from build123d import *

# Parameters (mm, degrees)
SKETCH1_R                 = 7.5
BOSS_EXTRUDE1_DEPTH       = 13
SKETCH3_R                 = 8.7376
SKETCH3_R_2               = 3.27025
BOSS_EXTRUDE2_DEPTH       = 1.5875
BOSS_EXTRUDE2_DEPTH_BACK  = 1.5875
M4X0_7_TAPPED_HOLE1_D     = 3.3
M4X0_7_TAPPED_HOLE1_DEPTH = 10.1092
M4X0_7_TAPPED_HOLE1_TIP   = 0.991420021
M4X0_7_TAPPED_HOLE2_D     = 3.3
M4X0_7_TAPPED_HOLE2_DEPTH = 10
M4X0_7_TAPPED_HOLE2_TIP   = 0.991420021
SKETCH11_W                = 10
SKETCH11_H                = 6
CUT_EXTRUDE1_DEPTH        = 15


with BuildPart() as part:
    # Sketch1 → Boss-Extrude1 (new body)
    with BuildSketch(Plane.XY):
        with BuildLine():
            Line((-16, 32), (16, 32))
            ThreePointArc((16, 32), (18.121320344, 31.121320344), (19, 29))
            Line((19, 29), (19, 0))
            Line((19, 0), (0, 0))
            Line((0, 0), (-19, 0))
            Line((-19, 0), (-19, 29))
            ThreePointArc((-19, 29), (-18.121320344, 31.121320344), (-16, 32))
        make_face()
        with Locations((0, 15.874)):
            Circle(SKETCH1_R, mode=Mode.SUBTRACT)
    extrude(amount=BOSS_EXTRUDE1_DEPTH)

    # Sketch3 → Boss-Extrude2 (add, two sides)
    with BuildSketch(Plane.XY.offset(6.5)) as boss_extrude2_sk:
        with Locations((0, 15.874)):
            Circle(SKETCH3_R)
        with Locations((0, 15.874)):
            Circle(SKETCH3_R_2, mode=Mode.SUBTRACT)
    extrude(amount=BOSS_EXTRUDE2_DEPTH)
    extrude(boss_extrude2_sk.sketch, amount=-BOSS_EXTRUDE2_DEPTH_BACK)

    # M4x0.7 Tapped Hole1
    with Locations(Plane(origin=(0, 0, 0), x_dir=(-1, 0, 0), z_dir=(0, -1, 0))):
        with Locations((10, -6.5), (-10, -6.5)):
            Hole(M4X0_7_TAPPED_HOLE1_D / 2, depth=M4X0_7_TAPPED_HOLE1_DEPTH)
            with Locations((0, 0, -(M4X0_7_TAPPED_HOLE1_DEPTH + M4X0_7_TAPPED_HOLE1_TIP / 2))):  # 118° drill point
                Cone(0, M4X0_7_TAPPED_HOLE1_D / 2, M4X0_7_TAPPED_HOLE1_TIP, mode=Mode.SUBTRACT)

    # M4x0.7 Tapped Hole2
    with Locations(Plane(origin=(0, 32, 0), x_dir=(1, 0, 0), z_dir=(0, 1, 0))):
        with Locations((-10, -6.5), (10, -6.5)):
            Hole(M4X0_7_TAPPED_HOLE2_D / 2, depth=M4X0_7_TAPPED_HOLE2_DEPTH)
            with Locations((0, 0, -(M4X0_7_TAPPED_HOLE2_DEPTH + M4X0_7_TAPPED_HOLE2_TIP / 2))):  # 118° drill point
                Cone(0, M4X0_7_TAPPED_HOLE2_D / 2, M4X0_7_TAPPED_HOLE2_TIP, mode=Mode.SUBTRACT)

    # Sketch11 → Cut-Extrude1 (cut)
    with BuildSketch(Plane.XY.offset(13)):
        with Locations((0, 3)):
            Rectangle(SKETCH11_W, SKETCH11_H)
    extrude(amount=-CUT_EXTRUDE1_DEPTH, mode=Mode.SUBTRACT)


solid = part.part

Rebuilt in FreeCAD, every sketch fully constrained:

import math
import FreeCAD as App
import Part
import Sketcher
from FreeCAD import Vector
Q = App.Units.Quantity

doc = App.newDocument("Part")
body = doc.addObject("PartDesign::Body", "Body")

# Sketch on XY plane
sketch1 = body.newObject("Sketcher::SketchObject", "Sketch")
sketch1.AttachmentSupport = (doc.getObject("XY_Plane"), [""])
sketch1.MapMode = "FlatFace"
sketch1.addGeometry(Part.LineSegment(Vector(16, 32, 0), Vector(-16, 32, 0)), False)
sketch1.addGeometry(Part.ArcOfCircle(Part.Circle(Vector(-16, 29, 0), Vector(0, 0, 1), 3), math.radians(90), math.radians(180)), False)
sketch1.addGeometry(Part.LineSegment(Vector(-19, 29, 0), Vector(-19, 0, 0)), False)
sketch1.addGeometry(Part.LineSegment(Vector(-19, 0, 0), Vector(19, 0, 0)), False)
sketch1.addGeometry(Part.LineSegment(Vector(19, 0, 0), Vector(19, 29, 0)), False)
sketch1.addGeometry(Part.ArcOfCircle(Part.Circle(Vector(16, 29, 0), Vector(0, 0, 1), 3), math.radians(0), math.radians(90)), False)
sketch1.addGeometry(Part.Circle(Vector(0, 15.9, 0), Vector(0, 0, 1), 7.5), False)
sketch1.addConstraint(Sketcher.Constraint("Tangent", 0, 2, 1, 1))
sketch1.addConstraint(Sketcher.Constraint("Tangent", 1, 2, 2, 1))
sketch1.addConstraint(Sketcher.Constraint("Coincident", 2, 2, 3, 1))
sketch1.addConstraint(Sketcher.Constraint("Coincident", 3, 2, 4, 1))
sketch1.addConstraint(Sketcher.Constraint("Tangent", 4, 2, 5, 1))
sketch1.addConstraint(Sketcher.Constraint("Tangent", 5, 2, 0, 1))
sketch1.addConstraint(Sketcher.Constraint("Horizontal", 0))
sketch1.addConstraint(Sketcher.Constraint("Vertical", 2))
sketch1.addConstraint(Sketcher.Constraint("Horizontal", 3))
sketch1.addConstraint(Sketcher.Constraint("Vertical", 4))
sketch1.addConstraint(Sketcher.Constraint("Equal", 1, 5))
sketch1.addConstraint(Sketcher.Constraint("Symmetric", 2, 2, 3, 2, -1, 1))
sketch1.addConstraint(Sketcher.Constraint("PointOnObject", 6, 3, -2))
sketch1.addConstraint(Sketcher.Constraint("Diameter", 6, Q("15 mm")))
sketch1.addConstraint(Sketcher.Constraint("Radius", 1, Q("3 mm")))
sketch1.addConstraint(Sketcher.Constraint("DistanceX", 0, 2, 0, 1, Q("32 mm")))
sketch1.addConstraint(Sketcher.Constraint("DistanceY", 2, 2, 2, 1, Q("29 mm")))
sketch1.addConstraint(Sketcher.Constraint("DistanceY", -1, 1, 6, 3, Q("15.874 mm")))
pad1 = body.newObject("PartDesign::Pad", "Pad")
pad1.Profile = sketch1
pad1.Length = 13

# Sketch on XY plane
sketch2 = body.newObject("Sketcher::SketchObject", "Sketch001")
sketch2.AttachmentSupport = (doc.getObject("XY_Plane"), [""])
sketch2.MapMode = "FlatFace"
sketch2.AttachmentOffset = App.Placement(Vector(0, 0, 6.5), App.Rotation())
sketch2.addGeometry(Part.Circle(Vector(0, 15.9, 0), Vector(0, 0, 1), 8.7), False)
sketch2.addGeometry(Part.Circle(Vector(0, 15.9, 0), Vector(0, 0, 1), 3.3), False)
sketch2.addConstraint(Sketcher.Constraint("Coincident", 1, 3, 0, 3))
sketch2.addConstraint(Sketcher.Constraint("PointOnObject", 0, 3, -2))
sketch2.addConstraint(Sketcher.Constraint("Diameter", 0, Q("17.4752 mm")))
sketch2.addConstraint(Sketcher.Constraint("Diameter", 1, Q("6.5405 mm")))
sketch2.addConstraint(Sketcher.Constraint("DistanceY", -1, 1, 0, 3, Q("15.874 mm")))
pad2 = body.newObject("PartDesign::Pad", "Pad001")
pad2.Profile = sketch2
pad2.Type = "TwoLengths"
pad2.Length = 1.5875
pad2.Length2 = 1.5875

# Sketch on XZ plane
sketch3 = body.newObject("Sketcher::SketchObject", "Sketch002")
sketch3.AttachmentSupport = (doc.getObject("XZ_Plane"), [""])
sketch3.MapMode = "FlatFace"
sketch3.addGeometry(Part.Circle(Vector(-10, 6.5, 0), Vector(0, 0, 1), 1.6), False)
sketch3.addGeometry(Part.Circle(Vector(10, 6.5, 0), Vector(0, 0, 1), 1.6), False)
sketch3.addConstraint(Sketcher.Constraint("Equal", 0, 1))
sketch3.addConstraint(Sketcher.Constraint("Symmetric", 0, 3, 1, 3, -2))
sketch3.addConstraint(Sketcher.Constraint("Diameter", 0, Q("3.3 mm")))
sketch3.addConstraint(Sketcher.Constraint("DistanceX", 0, 3, -1, 1, Q("10 mm")))
sketch3.addConstraint(Sketcher.Constraint("DistanceY", -1, 1, 0, 3, Q("6.5 mm")))
doc.recompute()
hole = body.newObject("PartDesign::Hole", "Hole")
hole.Profile = sketch3
hole.ThreadType = "None"
hole.Diameter = 3.3
hole.DepthType = "Dimension"
hole.Depth = 10.1092
hole.DrillPoint = "Angled"
hole.DrillPointAngle = 118

# Sketch on XZ plane
sketch4 = body.newObject("Sketcher::SketchObject", "Sketch003")
sketch4.AttachmentSupport = (doc.getObject("XZ_Plane"), [""])
sketch4.MapMode = "FlatFace"
sketch4.AttachmentOffset = App.Placement(Vector(0, 0, -32), App.Rotation())
sketch4.addGeometry(Part.Circle(Vector(-10, 6.5, 0), Vector(0, 0, 1), 1.6), False)
sketch4.addGeometry(Part.Circle(Vector(10, 6.5, 0), Vector(0, 0, 1), 1.6), False)
sketch4.addConstraint(Sketcher.Constraint("Equal", 0, 1))
sketch4.addConstraint(Sketcher.Constraint("Symmetric", 0, 3, 1, 3, -2))
sketch4.addConstraint(Sketcher.Constraint("Diameter", 0, Q("3.3 mm")))
sketch4.addConstraint(Sketcher.Constraint("DistanceX", 0, 3, -1, 1, Q("10 mm")))
sketch4.addConstraint(Sketcher.Constraint("DistanceY", -1, 1, 0, 3, Q("6.5 mm")))
doc.recompute()
hole2 = body.newObject("PartDesign::Hole", "Hole001")
hole2.Profile = sketch4
hole2.ThreadType = "None"
hole2.Diameter = 3.3
hole2.DepthType = "Dimension"
hole2.Depth = 10
hole2.DrillPoint = "Angled"
hole2.DrillPointAngle = 118
hole2.Reversed = True

# Sketch on XY plane
sketch5 = body.newObject("Sketcher::SketchObject", "Sketch004")
sketch5.AttachmentSupport = (doc.getObject("XY_Plane"), [""])
sketch5.MapMode = "FlatFace"
sketch5.AttachmentOffset = App.Placement(Vector(0, 0, 13), App.Rotation())
sketch5.addGeometry(Part.LineSegment(Vector(-5, 6, 0), Vector(-5, 0, 0)), False)
sketch5.addGeometry(Part.LineSegment(Vector(-5, 0, 0), Vector(5, 0, 0)), False)
sketch5.addGeometry(Part.LineSegment(Vector(5, 0, 0), Vector(5, 6, 0)), False)
sketch5.addGeometry(Part.LineSegment(Vector(5, 6, 0), Vector(-5, 6, 0)), False)
sketch5.addConstraint(Sketcher.Constraint("Coincident", 0, 2, 1, 1))
sketch5.addConstraint(Sketcher.Constraint("Coincident", 1, 2, 2, 1))
sketch5.addConstraint(Sketcher.Constraint("Coincident", 2, 2, 3, 1))
sketch5.addConstraint(Sketcher.Constraint("Coincident", 3, 2, 0, 1))
sketch5.addConstraint(Sketcher.Constraint("Vertical", 0))
sketch5.addConstraint(Sketcher.Constraint("Horizontal", 1))
sketch5.addConstraint(Sketcher.Constraint("Vertical", 2))
sketch5.addConstraint(Sketcher.Constraint("Horizontal", 3))
sketch5.addConstraint(Sketcher.Constraint("Symmetric", 0, 2, 1, 2, -1, 1))
sketch5.addConstraint(Sketcher.Constraint("DistanceX", 1, 1, 1, 2, Q("10 mm")))
sketch5.addConstraint(Sketcher.Constraint("DistanceY", 0, 2, 0, 1, Q("6 mm")))
pocket1 = body.newObject("PartDesign::Pocket", "Pocket")
pocket1.Profile = sketch5
pocket1.Length = 15

doc.recompute()
